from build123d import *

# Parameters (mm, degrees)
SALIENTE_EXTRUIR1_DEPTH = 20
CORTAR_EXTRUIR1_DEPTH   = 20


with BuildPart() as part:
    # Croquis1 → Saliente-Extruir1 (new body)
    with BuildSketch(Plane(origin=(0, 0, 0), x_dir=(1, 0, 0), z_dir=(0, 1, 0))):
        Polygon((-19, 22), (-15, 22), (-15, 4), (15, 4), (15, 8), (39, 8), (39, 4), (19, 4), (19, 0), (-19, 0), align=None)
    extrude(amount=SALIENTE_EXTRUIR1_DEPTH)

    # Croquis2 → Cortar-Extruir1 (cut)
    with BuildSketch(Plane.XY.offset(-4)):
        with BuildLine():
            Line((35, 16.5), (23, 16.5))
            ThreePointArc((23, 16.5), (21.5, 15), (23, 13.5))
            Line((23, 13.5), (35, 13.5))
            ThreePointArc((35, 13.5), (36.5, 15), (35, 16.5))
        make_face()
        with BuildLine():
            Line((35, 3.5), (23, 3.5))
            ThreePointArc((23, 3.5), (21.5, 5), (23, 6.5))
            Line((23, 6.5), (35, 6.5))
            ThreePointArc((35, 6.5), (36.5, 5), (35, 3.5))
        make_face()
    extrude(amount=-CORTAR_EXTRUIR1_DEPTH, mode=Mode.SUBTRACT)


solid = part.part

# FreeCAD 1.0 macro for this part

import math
import FreeCAD as App
import Part
import Sketcher
Q = App.Units.Quantity

doc = App.newDocument("Part")
body = doc.addObject("PartDesign::Body", "Body")

# Sketch on XZ plane
sketch1 = body.newObject("Sketcher::SketchObject", "Sketch")
sketch1.AttachmentSupport = (doc.getObject("XZ_Plane"), [""])
sketch1.MapMode = "FlatFace"
sketch1.addGeometry([
    Part.LineSegment(App.Vector(-15, -22, 0), App.Vector(-19, -22, 0)),  # 0
    Part.LineSegment(App.Vector(-19, -22, 0), App.Vector(-19, 0, 0)),  # 1
    Part.LineSegment(App.Vector(-19, 0, 0), App.Vector(19, 0, 0)),  # 2
    Part.LineSegment(App.Vector(19, 0, 0), App.Vector(19, -4, 0)),  # 3
    Part.LineSegment(App.Vector(19, -4, 0), App.Vector(39, -4, 0)),  # 4
    Part.LineSegment(App.Vector(39, -4, 0), App.Vector(39, -8, 0)),  # 5
    Part.LineSegment(App.Vector(39, -8, 0), App.Vector(15, -8, 0)),  # 6
    Part.LineSegment(App.Vector(15, -8, 0), App.Vector(15, -4, 0)),  # 7
    Part.LineSegment(App.Vector(15, -4, 0), App.Vector(-15, -4, 0)),  # 8
    Part.LineSegment(App.Vector(-15, -4, 0), App.Vector(-15, -22, 0)),  # 9
], False)
sketch1.addConstraint([
    Sketcher.Constraint("Coincident", 0, 2, 1, 1),
    Sketcher.Constraint("Coincident", 1, 2, 2, 1),
    Sketcher.Constraint("Coincident", 2, 2, 3, 1),
    Sketcher.Constraint("Coincident", 3, 2, 4, 1),
    Sketcher.Constraint("Coincident", 4, 2, 5, 1),
    Sketcher.Constraint("Coincident", 5, 2, 6, 1),
    Sketcher.Constraint("Coincident", 6, 2, 7, 1),
    Sketcher.Constraint("Coincident", 7, 2, 8, 1),
    Sketcher.Constraint("Coincident", 8, 2, 9, 1),
    Sketcher.Constraint("Coincident", 9, 2, 0, 1),
    Sketcher.Constraint("Horizontal", 0),
    Sketcher.Constraint("Vertical", 1),
    Sketcher.Constraint("Horizontal", 2),
    Sketcher.Constraint("Vertical", 3),
    Sketcher.Constraint("Horizontal", 4),
    Sketcher.Constraint("Vertical", 5),
    Sketcher.Constraint("Horizontal", 6),
    Sketcher.Constraint("Vertical", 7),
    Sketcher.Constraint("Horizontal", 8),
    Sketcher.Constraint("Vertical", 9),
    Sketcher.Constraint("Symmetric", 1, 2, 2, 2, -1, 1),
    Sketcher.Constraint("Horizontal", 4, 2, 7, 2),
    Sketcher.Constraint("Equal", 0, 3),
    Sketcher.Constraint("Equal", 3, 5),
    Sketcher.Constraint("DistanceX", 0, 2, 0, 1, Q("4 mm")),
    Sketcher.Constraint("DistanceX", 2, 1, 2, 2, Q("38 mm")),
    Sketcher.Constraint("DistanceX", 4, 1, 4, 2, Q("20 mm")),
    Sketcher.Constraint("DistanceX", 6, 2, 6, 1, Q("24 mm")),
    Sketcher.Constraint("DistanceY", 1, 1, 1, 2, Q("22 mm")),
])
pad1 = body.newObject("PartDesign::Pad", "Pad")
pad1.Profile = sketch1
pad1.Length = 20
pad1.Reversed = True

# Sketch on XY plane
sketch2 = body.newObject("Sketcher::SketchObject", "Sketch001")
sketch2.AttachmentSupport = (doc.getObject("XY_Plane"), [""])
sketch2.MapMode = "FlatFace"
sketch2.AttachmentOffset = App.Placement(App.Vector(0, 0, -4), App.Rotation())
sketch2.addGeometry([
    Part.LineSegment(App.Vector(35, 16.5, 0), App.Vector(23, 16.5, 0)),  # 0
    Part.ArcOfCircle(Part.Circle(App.Vector(23, 15, 0), App.Vector(0, 0, 1), 1.5), math.radians(90), math.radians(270)),  # 1
    Part.LineSegment(App.Vector(23, 13.5, 0), App.Vector(35, 13.5, 0)),  # 2
    Part.ArcOfCircle(Part.Circle(App.Vector(35, 15, 0), App.Vector(0, 0, 1), 1.5), math.radians(-90), math.radians(90)),  # 3
    Part.LineSegment(App.Vector(23, 3.5, 0), App.Vector(35, 3.5, 0)),  # 4
    Part.ArcOfCircle(Part.Circle(App.Vector(35, 5, 0), App.Vector(0, 0, 1), 1.5), math.radians(-90), math.radians(90)),  # 5
    Part.LineSegment(App.Vector(35, 6.5, 0), App.Vector(23, 6.5, 0)),  # 6
    Part.ArcOfCircle(Part.Circle(App.Vector(23, 5, 0), App.Vector(0, 0, 1), 1.5), math.radians(90), math.radians(270)),  # 7
], False)
sketch2.addConstraint([
    Sketcher.Constraint("Tangent", 0, 2, 1, 1),
    Sketcher.Constraint("Tangent", 1, 2, 2, 1),
    Sketcher.Constraint("Tangent", 2, 2, 3, 1),
    Sketcher.Constraint("Tangent", 3, 2, 0, 1),
    Sketcher.Constraint("Tangent", 4, 2, 5, 1),
    Sketcher.Constraint("Tangent", 5, 2, 6, 1),
    Sketcher.Constraint("Tangent", 6, 2, 7, 1),
    Sketcher.Constraint("Tangent", 7, 2, 4, 1),
    Sketcher.Constraint("Horizontal", 0),
    Sketcher.Constraint("Horizontal", 2),
    Sketcher.Constraint("Horizontal", 4),
    Sketcher.Constraint("Horizontal", 6),
    Sketcher.Constraint("Equal", 3, 5),
    Sketcher.Constraint("Vertical", 3, 3, 5, 3),
    Sketcher.Constraint("Vertical", 1, 3, 7, 3),
    Sketcher.Constraint("Radius", 1, Q("1.5 mm")),
    Sketcher.Constraint("DistanceX", 0, 2, 0, 1, Q("12 mm")),
    Sketcher.Constraint("DistanceX", -1, 1, 1, 3, Q("23 mm")),
    Sketcher.Constraint("DistanceY", -1, 1, 1, 3, Q("15 mm")),
    Sketcher.Constraint("DistanceY", -1, 1, 5, 3, Q("5 mm")),
])
pocket1 = body.newObject("PartDesign::Pocket", "Pocket")
pocket1.Profile = sketch2
pocket1.Length = 20

doc.recompute()
